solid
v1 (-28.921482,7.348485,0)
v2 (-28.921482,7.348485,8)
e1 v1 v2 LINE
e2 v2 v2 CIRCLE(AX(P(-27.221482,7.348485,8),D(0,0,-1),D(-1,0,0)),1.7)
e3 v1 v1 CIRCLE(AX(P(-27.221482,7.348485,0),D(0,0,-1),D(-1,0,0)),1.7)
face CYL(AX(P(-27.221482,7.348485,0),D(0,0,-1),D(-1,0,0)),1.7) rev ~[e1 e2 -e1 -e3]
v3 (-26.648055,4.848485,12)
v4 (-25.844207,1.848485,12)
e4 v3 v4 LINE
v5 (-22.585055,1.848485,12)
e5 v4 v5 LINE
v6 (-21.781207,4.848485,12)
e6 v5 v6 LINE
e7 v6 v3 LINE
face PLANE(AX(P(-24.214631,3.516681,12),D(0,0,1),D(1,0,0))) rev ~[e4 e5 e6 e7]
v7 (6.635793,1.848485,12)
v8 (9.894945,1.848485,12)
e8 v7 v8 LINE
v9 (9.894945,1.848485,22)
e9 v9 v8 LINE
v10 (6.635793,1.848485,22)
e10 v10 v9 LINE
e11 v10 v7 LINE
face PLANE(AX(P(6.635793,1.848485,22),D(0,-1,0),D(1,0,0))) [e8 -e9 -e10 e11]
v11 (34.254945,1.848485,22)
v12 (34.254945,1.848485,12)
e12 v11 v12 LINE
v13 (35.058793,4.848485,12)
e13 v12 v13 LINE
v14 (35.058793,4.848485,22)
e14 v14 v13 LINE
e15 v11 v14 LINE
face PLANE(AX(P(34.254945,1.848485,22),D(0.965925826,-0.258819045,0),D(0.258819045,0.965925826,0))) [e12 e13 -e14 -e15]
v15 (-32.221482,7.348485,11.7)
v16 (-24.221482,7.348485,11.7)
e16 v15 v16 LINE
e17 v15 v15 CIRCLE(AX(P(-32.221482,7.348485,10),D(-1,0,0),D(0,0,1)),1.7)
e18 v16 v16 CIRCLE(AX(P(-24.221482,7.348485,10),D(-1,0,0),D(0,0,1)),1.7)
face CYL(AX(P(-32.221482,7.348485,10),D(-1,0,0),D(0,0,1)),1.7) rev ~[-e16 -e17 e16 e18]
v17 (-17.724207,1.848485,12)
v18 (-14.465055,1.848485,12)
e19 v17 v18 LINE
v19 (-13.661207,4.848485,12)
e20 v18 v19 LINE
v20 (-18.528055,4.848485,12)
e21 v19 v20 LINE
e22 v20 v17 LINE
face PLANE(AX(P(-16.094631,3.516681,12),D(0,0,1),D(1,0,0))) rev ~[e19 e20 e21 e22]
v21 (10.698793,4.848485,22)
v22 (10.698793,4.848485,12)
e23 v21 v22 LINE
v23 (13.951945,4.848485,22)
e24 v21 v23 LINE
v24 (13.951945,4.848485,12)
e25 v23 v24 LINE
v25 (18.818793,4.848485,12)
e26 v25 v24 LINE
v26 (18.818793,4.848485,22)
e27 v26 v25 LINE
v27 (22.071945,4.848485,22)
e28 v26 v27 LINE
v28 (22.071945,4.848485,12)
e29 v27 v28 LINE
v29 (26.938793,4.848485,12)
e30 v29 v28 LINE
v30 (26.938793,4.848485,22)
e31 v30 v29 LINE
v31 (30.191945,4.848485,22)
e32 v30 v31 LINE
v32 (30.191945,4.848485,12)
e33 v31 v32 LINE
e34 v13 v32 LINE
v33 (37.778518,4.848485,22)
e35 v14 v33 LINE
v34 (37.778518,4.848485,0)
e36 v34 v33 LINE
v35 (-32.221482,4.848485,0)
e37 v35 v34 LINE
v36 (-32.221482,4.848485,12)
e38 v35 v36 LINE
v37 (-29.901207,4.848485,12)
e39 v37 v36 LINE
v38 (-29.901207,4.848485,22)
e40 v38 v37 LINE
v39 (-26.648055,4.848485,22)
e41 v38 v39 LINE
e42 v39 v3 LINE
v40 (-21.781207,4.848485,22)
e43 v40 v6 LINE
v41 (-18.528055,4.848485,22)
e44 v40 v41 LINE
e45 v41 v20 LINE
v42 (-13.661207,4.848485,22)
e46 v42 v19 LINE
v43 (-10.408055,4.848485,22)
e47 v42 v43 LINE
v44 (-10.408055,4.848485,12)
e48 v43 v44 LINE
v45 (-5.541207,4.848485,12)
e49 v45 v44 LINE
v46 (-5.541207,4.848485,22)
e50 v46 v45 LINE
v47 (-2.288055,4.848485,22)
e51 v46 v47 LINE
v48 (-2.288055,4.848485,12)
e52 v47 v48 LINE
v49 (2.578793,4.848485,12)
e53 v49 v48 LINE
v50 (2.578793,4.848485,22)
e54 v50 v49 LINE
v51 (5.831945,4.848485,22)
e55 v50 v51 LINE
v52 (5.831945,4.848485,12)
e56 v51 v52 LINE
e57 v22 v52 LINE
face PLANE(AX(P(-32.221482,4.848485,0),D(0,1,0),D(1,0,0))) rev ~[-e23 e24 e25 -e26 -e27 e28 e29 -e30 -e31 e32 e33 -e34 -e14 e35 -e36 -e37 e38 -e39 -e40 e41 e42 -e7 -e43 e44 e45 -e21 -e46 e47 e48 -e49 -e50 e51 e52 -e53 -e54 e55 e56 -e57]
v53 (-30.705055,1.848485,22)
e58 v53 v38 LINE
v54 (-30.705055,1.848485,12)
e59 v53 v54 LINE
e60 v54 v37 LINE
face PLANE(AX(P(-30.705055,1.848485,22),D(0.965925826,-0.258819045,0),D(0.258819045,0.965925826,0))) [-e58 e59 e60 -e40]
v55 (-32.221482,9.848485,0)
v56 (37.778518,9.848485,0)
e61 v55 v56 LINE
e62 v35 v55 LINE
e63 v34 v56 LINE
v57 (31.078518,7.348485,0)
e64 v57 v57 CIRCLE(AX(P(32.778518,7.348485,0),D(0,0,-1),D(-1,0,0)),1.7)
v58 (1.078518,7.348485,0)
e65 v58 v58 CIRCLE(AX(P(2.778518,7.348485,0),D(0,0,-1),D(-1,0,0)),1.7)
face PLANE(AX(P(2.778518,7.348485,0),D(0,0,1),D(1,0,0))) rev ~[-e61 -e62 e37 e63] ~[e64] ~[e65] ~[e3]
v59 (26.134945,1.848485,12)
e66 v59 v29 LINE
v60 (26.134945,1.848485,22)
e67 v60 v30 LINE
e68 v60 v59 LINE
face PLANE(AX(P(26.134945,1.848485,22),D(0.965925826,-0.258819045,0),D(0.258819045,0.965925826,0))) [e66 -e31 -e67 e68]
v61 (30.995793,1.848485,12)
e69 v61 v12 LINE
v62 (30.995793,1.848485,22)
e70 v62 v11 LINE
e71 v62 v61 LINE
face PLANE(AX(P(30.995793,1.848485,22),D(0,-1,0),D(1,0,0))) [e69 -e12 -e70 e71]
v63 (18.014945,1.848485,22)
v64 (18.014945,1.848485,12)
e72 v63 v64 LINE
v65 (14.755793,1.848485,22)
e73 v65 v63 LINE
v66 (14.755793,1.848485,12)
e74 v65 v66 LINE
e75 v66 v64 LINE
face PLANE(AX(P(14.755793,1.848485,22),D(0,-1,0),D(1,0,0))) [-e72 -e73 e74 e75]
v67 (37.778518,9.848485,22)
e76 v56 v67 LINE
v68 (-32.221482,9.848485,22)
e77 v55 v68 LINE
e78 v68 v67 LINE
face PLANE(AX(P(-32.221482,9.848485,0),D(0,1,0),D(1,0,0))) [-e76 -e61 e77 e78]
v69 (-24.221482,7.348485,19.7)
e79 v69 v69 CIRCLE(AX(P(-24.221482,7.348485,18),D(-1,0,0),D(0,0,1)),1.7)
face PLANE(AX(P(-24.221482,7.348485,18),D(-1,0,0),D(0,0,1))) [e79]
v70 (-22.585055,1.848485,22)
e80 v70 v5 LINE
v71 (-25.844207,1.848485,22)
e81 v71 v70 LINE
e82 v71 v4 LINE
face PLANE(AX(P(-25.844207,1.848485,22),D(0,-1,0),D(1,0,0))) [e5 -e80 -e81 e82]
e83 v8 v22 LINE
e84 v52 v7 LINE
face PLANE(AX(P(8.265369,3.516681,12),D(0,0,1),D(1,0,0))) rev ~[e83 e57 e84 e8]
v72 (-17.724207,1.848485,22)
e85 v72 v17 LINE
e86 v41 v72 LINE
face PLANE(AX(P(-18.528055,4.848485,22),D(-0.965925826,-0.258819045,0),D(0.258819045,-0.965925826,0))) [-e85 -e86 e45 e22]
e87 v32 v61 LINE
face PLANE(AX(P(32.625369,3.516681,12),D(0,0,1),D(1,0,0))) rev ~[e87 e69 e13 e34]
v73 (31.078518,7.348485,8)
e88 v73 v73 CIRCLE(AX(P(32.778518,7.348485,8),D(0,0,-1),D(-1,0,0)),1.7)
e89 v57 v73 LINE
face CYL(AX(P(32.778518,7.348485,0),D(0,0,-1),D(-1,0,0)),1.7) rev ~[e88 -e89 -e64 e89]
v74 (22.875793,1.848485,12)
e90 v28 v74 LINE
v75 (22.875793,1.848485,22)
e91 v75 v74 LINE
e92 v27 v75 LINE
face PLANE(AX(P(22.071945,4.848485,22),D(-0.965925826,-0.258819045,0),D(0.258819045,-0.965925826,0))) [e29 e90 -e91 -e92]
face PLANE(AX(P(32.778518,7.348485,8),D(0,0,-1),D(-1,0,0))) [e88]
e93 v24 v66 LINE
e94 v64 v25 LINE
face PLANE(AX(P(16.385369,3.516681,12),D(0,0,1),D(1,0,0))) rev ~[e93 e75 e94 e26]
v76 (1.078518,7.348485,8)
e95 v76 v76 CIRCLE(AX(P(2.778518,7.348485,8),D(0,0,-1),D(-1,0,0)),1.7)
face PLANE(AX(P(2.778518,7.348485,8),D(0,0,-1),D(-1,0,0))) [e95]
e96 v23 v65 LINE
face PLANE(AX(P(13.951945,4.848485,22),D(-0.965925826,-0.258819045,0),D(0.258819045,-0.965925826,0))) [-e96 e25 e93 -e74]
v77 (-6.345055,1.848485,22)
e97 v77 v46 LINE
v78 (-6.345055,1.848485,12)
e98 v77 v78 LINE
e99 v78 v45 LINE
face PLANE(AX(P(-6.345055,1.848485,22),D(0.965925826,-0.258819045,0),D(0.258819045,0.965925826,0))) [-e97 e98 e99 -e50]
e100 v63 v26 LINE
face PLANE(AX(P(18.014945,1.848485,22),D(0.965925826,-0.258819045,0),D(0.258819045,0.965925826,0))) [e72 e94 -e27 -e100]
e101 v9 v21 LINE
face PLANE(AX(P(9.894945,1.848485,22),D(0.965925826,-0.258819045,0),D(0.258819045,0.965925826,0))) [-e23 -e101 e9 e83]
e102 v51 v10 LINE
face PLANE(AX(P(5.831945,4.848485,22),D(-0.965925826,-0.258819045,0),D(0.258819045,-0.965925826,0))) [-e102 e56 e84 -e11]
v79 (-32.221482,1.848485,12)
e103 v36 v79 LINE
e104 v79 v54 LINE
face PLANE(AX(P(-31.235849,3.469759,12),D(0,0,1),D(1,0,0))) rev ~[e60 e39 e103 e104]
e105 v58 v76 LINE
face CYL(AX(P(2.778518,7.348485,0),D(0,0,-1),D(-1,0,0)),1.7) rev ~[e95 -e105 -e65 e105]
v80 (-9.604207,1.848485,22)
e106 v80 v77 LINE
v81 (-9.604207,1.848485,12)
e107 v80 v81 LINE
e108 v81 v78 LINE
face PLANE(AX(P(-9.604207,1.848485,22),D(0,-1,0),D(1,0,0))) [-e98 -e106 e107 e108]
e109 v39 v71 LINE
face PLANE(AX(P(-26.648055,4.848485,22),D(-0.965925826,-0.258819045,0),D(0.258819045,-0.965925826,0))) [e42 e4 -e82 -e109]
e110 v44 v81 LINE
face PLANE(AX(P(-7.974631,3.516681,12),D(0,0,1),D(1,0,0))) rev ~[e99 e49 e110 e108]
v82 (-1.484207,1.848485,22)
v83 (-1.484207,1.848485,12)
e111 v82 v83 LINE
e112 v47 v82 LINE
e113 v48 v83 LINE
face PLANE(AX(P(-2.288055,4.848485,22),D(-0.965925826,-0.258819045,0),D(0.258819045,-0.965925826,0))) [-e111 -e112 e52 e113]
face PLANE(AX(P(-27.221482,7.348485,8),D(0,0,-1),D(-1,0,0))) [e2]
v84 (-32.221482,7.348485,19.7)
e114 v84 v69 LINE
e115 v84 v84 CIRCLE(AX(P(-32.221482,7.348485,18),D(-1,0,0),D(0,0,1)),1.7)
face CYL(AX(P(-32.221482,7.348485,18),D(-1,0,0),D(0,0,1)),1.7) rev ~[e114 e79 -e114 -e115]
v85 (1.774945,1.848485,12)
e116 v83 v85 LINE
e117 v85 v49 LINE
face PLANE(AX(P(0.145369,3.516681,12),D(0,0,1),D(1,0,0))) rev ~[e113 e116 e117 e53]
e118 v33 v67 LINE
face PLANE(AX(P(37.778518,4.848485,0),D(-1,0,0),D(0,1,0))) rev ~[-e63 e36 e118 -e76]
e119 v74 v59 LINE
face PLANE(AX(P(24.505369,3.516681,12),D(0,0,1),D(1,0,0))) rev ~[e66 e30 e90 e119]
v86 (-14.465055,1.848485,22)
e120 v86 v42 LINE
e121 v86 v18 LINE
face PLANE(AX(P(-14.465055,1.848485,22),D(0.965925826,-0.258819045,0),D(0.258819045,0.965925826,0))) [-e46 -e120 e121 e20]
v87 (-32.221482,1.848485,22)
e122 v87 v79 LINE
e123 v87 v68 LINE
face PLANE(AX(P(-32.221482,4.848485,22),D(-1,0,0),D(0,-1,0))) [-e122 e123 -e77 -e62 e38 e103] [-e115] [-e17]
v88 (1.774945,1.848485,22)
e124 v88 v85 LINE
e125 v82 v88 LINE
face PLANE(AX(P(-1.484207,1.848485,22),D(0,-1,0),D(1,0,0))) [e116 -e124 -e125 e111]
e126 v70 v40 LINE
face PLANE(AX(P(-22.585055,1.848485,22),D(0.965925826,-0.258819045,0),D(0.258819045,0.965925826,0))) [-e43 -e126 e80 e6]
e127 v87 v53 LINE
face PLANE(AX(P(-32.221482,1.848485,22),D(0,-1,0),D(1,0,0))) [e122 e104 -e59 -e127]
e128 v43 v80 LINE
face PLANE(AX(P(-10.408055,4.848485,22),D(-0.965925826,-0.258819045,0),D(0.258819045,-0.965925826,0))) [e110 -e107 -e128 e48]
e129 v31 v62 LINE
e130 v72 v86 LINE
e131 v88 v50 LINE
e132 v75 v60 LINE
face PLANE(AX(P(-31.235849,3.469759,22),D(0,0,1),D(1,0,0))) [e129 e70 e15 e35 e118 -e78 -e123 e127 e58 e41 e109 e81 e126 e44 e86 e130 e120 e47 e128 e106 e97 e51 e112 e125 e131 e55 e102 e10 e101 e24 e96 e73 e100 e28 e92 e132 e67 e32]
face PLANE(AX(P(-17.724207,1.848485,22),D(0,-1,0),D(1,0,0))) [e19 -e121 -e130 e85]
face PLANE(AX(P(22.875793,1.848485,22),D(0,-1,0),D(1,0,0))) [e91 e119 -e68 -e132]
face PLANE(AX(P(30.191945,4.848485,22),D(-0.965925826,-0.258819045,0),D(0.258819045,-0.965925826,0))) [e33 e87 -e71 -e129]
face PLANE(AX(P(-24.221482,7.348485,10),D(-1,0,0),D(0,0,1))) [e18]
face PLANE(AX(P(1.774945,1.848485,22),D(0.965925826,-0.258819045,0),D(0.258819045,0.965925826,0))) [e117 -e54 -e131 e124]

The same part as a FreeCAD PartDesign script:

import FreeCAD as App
import Part
import Sketcher
Q = App.Units.Quantity

doc = App.newDocument("Part")
body = doc.addObject("PartDesign::Body", "Body")

sketch1 = body.newObject("Sketcher::SketchObject", "Sketch")
sketch1.AttachmentSupport = (doc.getObject("XY_Plane"), [""])
sketch1.MapMode = "FlatFace"
sketch1.addGeometry([
    Part.LineSegment(App.Vector(-32.221482, 9.848485, 0), App.Vector(-32.221482, 4.848485, 0)),
    Part.LineSegment(App.Vector(-32.221482, 4.848485, 0), App.Vector(37.778518, 4.848485, 0)),
    Part.LineSegment(App.Vector(37.778518, 4.848485, 0), App.Vector(37.778518, 9.848485, 0)),
    Part.LineSegment(App.Vector(37.778518, 9.848485, 0), App.Vector(-32.221482, 9.848485, 0)),
], False)
sketch1.addConstraint([
    Sketcher.Constraint("Coincident", 0, 2, 1, 1),
    Sketcher.Constraint("Coincident", 1, 2, 2, 1),
    Sketcher.Constraint("Coincident", 2, 2, 3, 1),
    Sketcher.Constraint("Coincident", 3, 2, 0, 1),
    Sketcher.Constraint("Vertical", 0),
    Sketcher.Constraint("Horizontal", 1),
    Sketcher.Constraint("Vertical", 2),
    Sketcher.Constraint("Horizontal", 3),
    Sketcher.Constraint("DistanceX", 1, 1, 1, 2, Q("70 mm")),
    Sketcher.Constraint("DistanceY", 0, 2, 0, 1, Q("5 mm")),
    Sketcher.Constraint("DistanceX", 0, 2, -1, 1, Q("32.221482 mm")),
    Sketcher.Constraint("DistanceY", -1, 1, 0, 2, Q("4.848485 mm")),
])
pad1 = body.newObject("PartDesign::Pad", "Pad")
pad1.Profile = sketch1
pad1.Length = 22

sketch2 = body.newObject("Sketcher::SketchObject", "Sketch001")
sketch2.AttachmentSupport = (doc.getObject("XY_Plane"), [""])
sketch2.MapMode = "FlatFace"
sketch2.AttachmentOffset = App.Placement(App.Vector(0, 0, 22), App.Rotation())
sketch2.addGeometry([
    Part.LineSegment(App.Vector(-32.221482, 1.848485, 0), App.Vector(-30.705055, 1.848485, 0)),
    Part.LineSegment(App.Vector(-30.705055, 1.848485, 0), App.Vector(-29.901207, 4.848485, 0)),
    Part.LineSegment(App.Vector(-29.901207, 4.848485, 0), App.Vector(-32.221482, 4.848485, 0)),
    Part.LineSegment(App.Vector(-32.221482, 4.848485, 0), App.Vector(-32.221482, 1.848485, 0)),
    Part.LineSegment(App.Vector(-25.844207, 1.848485, 0), App.Vector(-22.585055, 1.848485, 0)),
    Part.LineSegment(App.Vector(-22.585055, 1.848485, 0), App.Vector(-21.781207, 4.848485, 0)),
    Part.LineSegment(App.Vector(-21.781207, 4.848485, 0), App.Vector(-26.648055, 4.848485, 0)),
    Part.LineSegment(App.Vector(-26.648055, 4.848485, 0), App.Vector(-25.844207, 1.848485, 0)),
    Part.LineSegment(App.Vector(-18.528055, 4.848485, 0), App.Vector(-17.724207, 1.848485, 0)),
    Part.LineSegment(App.Vector(-17.724207, 1.848485, 0), App.Vector(-14.465055, 1.848485, 0)),
    Part.LineSegment(App.Vector(-14.465055, 1.848485, 0), App.Vector(-13.661207, 4.848485, 0)),
    Part.LineSegment(App.Vector(-13.661207, 4.848485, 0), App.Vector(-18.528055, 4.848485, 0)),
    Part.LineSegment(App.Vector(-10.408055, 4.848485, 0), App.Vector(-9.604207, 1.848485, 0)),
    Part.LineSegment(App.Vector(-9.604207, 1.848485, 0), App.Vector(-6.345055, 1.848485, 0)),
    Part.LineSegment(App.Vector(-6.345055, 1.848485, 0), App.Vector(-5.541207, 4.848485, 0)),
    Part.LineSegment(App.Vector(-5.541207, 4.848485, 0), App.Vector(-10.408055, 4.848485, 0)),
    Part.LineSegment(App.Vector(-2.288055, 4.848485, 0), App.Vector(-1.484207, 1.848485, 0)),
    Part.LineSegment(App.Vector(-1.484207, 1.848485, 0), App.Vector(1.774945, 1.848485, 0)),
    Part.LineSegment(App.Vector(1.774945, 1.848485, 0), App.Vector(2.578793, 4.848485, 0)),
    Part.LineSegment(App.Vector(2.578793, 4.848485, 0), App.Vector(-2.288055, 4.848485, 0)),
    Part.LineSegment(App.Vector(5.831945, 4.848485, 0), App.Vector(6.635793, 1.848485, 0)),
    Part.LineSegment(App.Vector(6.635793, 1.848485, 0), App.Vector(9.894945, 1.848485, 0)),
    Part.LineSegment(App.Vector(9.894945, 1.848485, 0), App.Vector(10.698793, 4.848485, 0)),
    Part.LineSegment(App.Vector(10.698793, 4.848485, 0), App.Vector(5.831945, 4.848485, 0)),
    Part.LineSegment(App.Vector(13.951945, 4.848485, 0), App.Vector(14.755793, 1.848485, 0)),
    Part.LineSegment(App.Vector(14.755793, 1.848485, 0), App.Vector(18.014945, 1.848485, 0)),
    Part.LineSegment(App.Vector(18.014945, 1.848485, 0), App.Vector(18.818793, 4.848485, 0)),
    Part.LineSegment(App.Vector(18.818793, 4.848485, 0), App.Vector(13.951945, 4.848485, 0)),
    Part.LineSegment(App.Vector(22.071945, 4.848485, 0), App.Vector(22.875793, 1.848485, 0)),
    Part.LineSegment(App.Vector(22.875793, 1.848485, 0), App.Vector(26.134945, 1.848485, 0)),
    Part.LineSegment(App.Vector(26.134945, 1.848485, 0), App.Vector(26.938793, 4.848485, 0)),
    Part.LineSegment(App.Vector(26.938793, 4.848485, 0), App.Vector(22.071945, 4.848485, 0)),
    Part.LineSegment(App.Vector(30.191945, 4.848485, 0), App.Vector(30.995793, 1.848485, 0)),
    Part.LineSegment(App.Vector(30.995793, 1.848485, 0), App.Vector(34.254945, 1.848485, 0)),
    Part.LineSegment(App.Vector(34.254945, 1.848485, 0), App.Vector(35.058793, 4.848485, 0)),
    Part.LineSegment(App.Vector(35.058793, 4.848485, 0), App.Vector(30.191945, 4.848485, 0)),
], False)
sketch2.addConstraint([
    Sketcher.Constraint("Coincident", 0, 2, 1, 1),
    Sketcher.Constraint("Coincident", 1, 2, 2, 1),
    Sketcher.Constraint("Coincident", 2, 2, 3, 1),
    Sketcher.Constraint("Coincident", 3, 2, 0, 1),
    Sketcher.Constraint("Coincident", 4, 2, 5, 1),
    Sketcher.Constraint("Coincident", 5, 2, 6, 1),
    Sketcher.Constraint("Coincident", 6, 2, 7, 1),
    Sketcher.Constraint("Coincident", 7, 2, 4, 1),
    Sketcher.Constraint("Coincident", 8, 2, 9, 1),
    Sketcher.Constraint("Coincident", 9, 2, 10, 1),
    Sketcher.Constraint("Coincident", 10, 2, 11, 1),
    Sketcher.Constraint("Coincident", 11, 2, 8, 1),
    Sketcher.Constraint("Coincident", 12, 2, 13, 1),
    Sketcher.Constraint("Coincident", 13, 2, 14, 1),
    Sketcher.Constraint("Coincident", 14, 2, 15, 1),
    Sketcher.Constraint("Coincident", 15, 2, 12, 1),
    Sketcher.Constraint("Coincident", 16, 2, 17, 1),
    Sketcher.Constraint("Coincident", 17, 2, 18, 1),
    Sketcher.Constraint("Coincident", 18, 2, 19, 1),
    Sketcher.Constraint("Coincident", 19, 2, 16, 1),
    Sketcher.Constraint("Coincident", 20, 2, 21, 1),
    Sketcher.Constraint("Coincident", 21, 2, 22, 1),
    Sketcher.Constraint("Coincident", 22, 2, 23, 1),
    Sketcher.Constraint("Coincident", 23, 2, 20, 1),
    Sketcher.Constraint("Coincident", 24, 2, 25, 1),
    Sketcher.Constraint("Coincident", 25, 2, 26, 1),
    Sketcher.Constraint("Coincident", 26, 2, 27, 1),
    Sketcher.Constraint("Coincident", 27, 2, 24, 1),
    Sketcher.Constraint("Coincident", 28, 2, 29, 1),
    Sketcher.Constraint("Coincident", 29, 2, 30, 1),
    Sketcher.Constraint("Coincident", 30, 2, 31, 1),
    Sketcher.Constraint("Coincident", 31, 2, 28, 1),
    Sketcher.Constraint("Coincident", 32, 2, 33, 1),
    Sketcher.Constraint("Coincident", 33, 2, 34, 1),
    Sketcher.Constraint("Coincident", 34, 2, 35, 1),
    Sketcher.Constraint("Coincident", 35, 2, 32, 1),
    Sketcher.Constraint("Horizontal", 0),
    Sketcher.Constraint("Horizontal", 2),
    Sketcher.Constraint("Vertical", 3),
    Sketcher.Constraint("Horizontal", 4),
    Sketcher.Constraint("Horizontal", 6),
    Sketcher.Constraint("Horizontal", 9),
    Sketcher.Constraint("Horizontal", 11),
    Sketcher.Constraint("Horizontal", 13),
    Sketcher.Constraint("Horizontal", 15),
    Sketcher.Constraint("Horizontal", 17),
    Sketcher.Constraint("Horizontal", 19),
    Sketcher.Constraint("Horizontal", 21),
    Sketcher.Constraint("Horizontal", 23),
    Sketcher.Constraint("Horizontal", 25),
    Sketcher.Constraint("Horizontal", 27),
    Sketcher.Constraint("Horizontal", 29),
    Sketcher.Constraint("Horizontal", 31),
    Sketcher.Constraint("Horizontal", 33),
    Sketcher.Constraint("Horizontal", 35),
    Sketcher.Constraint("Parallel", 1, 5),
    Sketcher.Constraint("Parallel", 7, 8),
    Sketcher.Constraint("Parallel", 5, 10),
    Sketcher.Constraint("Parallel", 8, 12),
    Sketcher.Constraint("Parallel", 10, 14),
    Sketcher.Constraint("Parallel", 12, 16),
    Sketcher.Constraint("Parallel", 14, 18),
    Sketcher.Constraint("Parallel", 16, 20),
    Sketcher.Constraint("Parallel", 18, 22),
    Sketcher.Constraint("Parallel", 20, 24),
    Sketcher.Constraint("Parallel", 22, 26),
    Sketcher.Constraint("Parallel", 24, 28),
    Sketcher.Constraint("Parallel", 26, 30),
    Sketcher.Constraint("Parallel", 28, 32),
    Sketcher.Constraint("Parallel", 30, 34),
    Sketcher.Constraint("Horizontal", 3, 2, 4, 2),
    Sketcher.Constraint("Horizontal", 2, 2, 5, 2),
    Sketcher.Constraint("Horizontal", 7, 2, 8, 2),
    Sketcher.Constraint("Horizontal", 6, 2, 10, 2),
    Sketcher.Constraint("Horizontal", 9, 2, 12, 2),
    Sketcher.Constraint("Horizontal", 11, 2, 14, 2),
    Sketcher.Constraint("Horizontal", 13, 2, 16, 2),
    Sketcher.Constraint("Horizontal", 15, 2, 18, 2),
    Sketcher.Constraint("Horizontal", 17, 2, 20, 2),
    Sketcher.Constraint("Horizontal", 19, 2, 22, 2),
    Sketcher.Constraint("Horizontal", 21, 2, 24, 2),
    Sketcher.Constraint("Horizontal", 23, 2, 26, 2),
    Sketcher.Constraint("Horizontal", 25, 2, 28, 2),
    Sketcher.Constraint("Horizontal", 27, 2, 30, 2),
    Sketcher.Constraint("Horizontal", 29, 2, 32, 2),
    Sketcher.Constraint("Horizontal", 31, 2, 34, 2),
    Sketcher.Constraint("Equal", 4, 9),
    Sketcher.Constraint("Equal", 9, 13),
    Sketcher.Constraint("Equal", 13, 17),
    Sketcher.Constraint("Equal", 17, 21),
    Sketcher.Constraint("Equal", 21, 25),
    Sketcher.Constraint("Equal", 25, 29),
    Sketcher.Constraint("Equal", 29, 33),
    Sketcher.Constraint("Equal", 5, 7),
    Sketcher.Constraint("DistanceY", 3, 2, 3, 1, Q("3 mm")),
    Sketcher.Constraint("Angle", 1, Q("75 deg")),
    Sketcher.Constraint("DistanceX", 0, 2, 4, 2, Q("8.12 mm")),
    Sketcher.Constraint("DistanceX", 7, 2, 8, 2, Q("8.12 mm")),
    Sketcher.Constraint("DistanceX", 8, 2, 12, 2, Q("8.12 mm")),
    Sketcher.Constraint("DistanceX", 12, 2, 16, 2, Q("8.12 mm")),
    Sketcher.Constraint("DistanceX", 16, 2, 20, 2, Q("8.12 mm")),
    Sketcher.Constraint("DistanceX", 20, 2, 24, 2, Q("8.12 mm")),
    Sketcher.Constraint("DistanceX", 24, 2, 28, 2, Q("8.12 mm")),
    Sketcher.Constraint("DistanceX", 28, 2, 32, 2, Q("8.12 mm")),
    Sketcher.Constraint("DistanceX", 0, 2, 6, 2, Q("4.057 mm")),
    Sketcher.Constraint("DistanceX", 0, 1, 0, 2, Q("1.516427 mm")),
    Sketcher.Constraint("DistanceX", 0, 2, -1, 1, Q("30.705055 mm")),
    Sketcher.Constraint("DistanceY", -1, 1, 0, 2, Q("1.848485 mm")),
])
pad2 = body.newObject("PartDesign::Pad", "Pad001")
pad2.Profile = sketch2
pad2.Length = 10
pad2.Reversed = True

sketch3 = body.newObject("Sketcher::SketchObject", "Sketch002")
sketch3.AttachmentSupport = (doc.getObject("XY_Plane"), [""])
sketch3.MapMode = "FlatFace"
sketch3.addGeometry([
    Part.Circle(App.Vector(32.778518, 7.348485, 0), App.Vector(0, 0, 1), 1.7),
    Part.Circle(App.Vector(2.778518, 7.348485, 0), App.Vector(0, 0, 1), 1.7),
    Part.Circle(App.Vector(-27.221482, 7.348485, 0), App.Vector(0, 0, 1), 1.7),
], False)
sketch3.addConstraint([
    Sketcher.Constraint("Equal", 0, 1),
    Sketcher.Constraint("Equal", 1, 2),
    Sketcher.Constraint("Horizontal", 0, 3, 1, 3),
    Sketcher.Constraint("Horizontal", 1, 3, 2, 3),
    Sketcher.Constraint("Diameter", 0, Q("3.4 mm")),
    Sketcher.Constraint("DistanceX", 1, 3, 0, 3, Q("30 mm")),
    Sketcher.Constraint("DistanceX", 2, 3, 1, 3, Q("30 mm")),
    Sketcher.Constraint("DistanceX", -1, 1, 0, 3, Q("32.778518 mm")),
    Sketcher.Constraint("DistanceY", -1, 1, 0, 3, Q("7.348485 mm")),
])
pocket1 = body.newObject("PartDesign::Pocket", "Pocket")
pocket1.Profile = sketch3
pocket1.Length = 8
pocket1.Reversed = True

sketch4 = body.newObject("Sketcher::SketchObject", "Sketch003")
sketch4.AttachmentSupport = (doc.getObject("YZ_Plane"), [""])
sketch4.MapMode = "FlatFace"
sketch4.AttachmentOffset = App.Placement(App.Vector(0, 0, -32.221482), App.Rotation())
sketch4.addGeometry([
    Part.Circle(App.Vector(7.348485, 10, 0), App.Vector(0, 0, 1), 1.7),
    Part.Circle(App.Vector(7.348485, 18, 0), App.Vector(0, 0, 1), 1.7),
], False)
sketch4.addConstraint([
    Sketcher.Constraint("Equal", 0, 1),
    Sketcher.Constraint("Vertical", 0, 3, 1, 3),
    Sketcher.Constraint("Diameter", 0, Q("3.4 mm")),
    Sketcher.Constraint("DistanceY", -1, 1, 0, 3, Q("10 mm")),
    Sketcher.Constraint("DistanceY", -1, 1, 1, 3, Q("18 mm")),
    Sketcher.Constraint("DistanceX", -1, 1, 0, 3, Q("7.348485 mm")),
])
pocket2 = body.newObject("PartDesign::Pocket", "Pocket001")
pocket2.Profile = sketch4
pocket2.Length = 8
pocket2.Reversed = True

doc.recompute()
